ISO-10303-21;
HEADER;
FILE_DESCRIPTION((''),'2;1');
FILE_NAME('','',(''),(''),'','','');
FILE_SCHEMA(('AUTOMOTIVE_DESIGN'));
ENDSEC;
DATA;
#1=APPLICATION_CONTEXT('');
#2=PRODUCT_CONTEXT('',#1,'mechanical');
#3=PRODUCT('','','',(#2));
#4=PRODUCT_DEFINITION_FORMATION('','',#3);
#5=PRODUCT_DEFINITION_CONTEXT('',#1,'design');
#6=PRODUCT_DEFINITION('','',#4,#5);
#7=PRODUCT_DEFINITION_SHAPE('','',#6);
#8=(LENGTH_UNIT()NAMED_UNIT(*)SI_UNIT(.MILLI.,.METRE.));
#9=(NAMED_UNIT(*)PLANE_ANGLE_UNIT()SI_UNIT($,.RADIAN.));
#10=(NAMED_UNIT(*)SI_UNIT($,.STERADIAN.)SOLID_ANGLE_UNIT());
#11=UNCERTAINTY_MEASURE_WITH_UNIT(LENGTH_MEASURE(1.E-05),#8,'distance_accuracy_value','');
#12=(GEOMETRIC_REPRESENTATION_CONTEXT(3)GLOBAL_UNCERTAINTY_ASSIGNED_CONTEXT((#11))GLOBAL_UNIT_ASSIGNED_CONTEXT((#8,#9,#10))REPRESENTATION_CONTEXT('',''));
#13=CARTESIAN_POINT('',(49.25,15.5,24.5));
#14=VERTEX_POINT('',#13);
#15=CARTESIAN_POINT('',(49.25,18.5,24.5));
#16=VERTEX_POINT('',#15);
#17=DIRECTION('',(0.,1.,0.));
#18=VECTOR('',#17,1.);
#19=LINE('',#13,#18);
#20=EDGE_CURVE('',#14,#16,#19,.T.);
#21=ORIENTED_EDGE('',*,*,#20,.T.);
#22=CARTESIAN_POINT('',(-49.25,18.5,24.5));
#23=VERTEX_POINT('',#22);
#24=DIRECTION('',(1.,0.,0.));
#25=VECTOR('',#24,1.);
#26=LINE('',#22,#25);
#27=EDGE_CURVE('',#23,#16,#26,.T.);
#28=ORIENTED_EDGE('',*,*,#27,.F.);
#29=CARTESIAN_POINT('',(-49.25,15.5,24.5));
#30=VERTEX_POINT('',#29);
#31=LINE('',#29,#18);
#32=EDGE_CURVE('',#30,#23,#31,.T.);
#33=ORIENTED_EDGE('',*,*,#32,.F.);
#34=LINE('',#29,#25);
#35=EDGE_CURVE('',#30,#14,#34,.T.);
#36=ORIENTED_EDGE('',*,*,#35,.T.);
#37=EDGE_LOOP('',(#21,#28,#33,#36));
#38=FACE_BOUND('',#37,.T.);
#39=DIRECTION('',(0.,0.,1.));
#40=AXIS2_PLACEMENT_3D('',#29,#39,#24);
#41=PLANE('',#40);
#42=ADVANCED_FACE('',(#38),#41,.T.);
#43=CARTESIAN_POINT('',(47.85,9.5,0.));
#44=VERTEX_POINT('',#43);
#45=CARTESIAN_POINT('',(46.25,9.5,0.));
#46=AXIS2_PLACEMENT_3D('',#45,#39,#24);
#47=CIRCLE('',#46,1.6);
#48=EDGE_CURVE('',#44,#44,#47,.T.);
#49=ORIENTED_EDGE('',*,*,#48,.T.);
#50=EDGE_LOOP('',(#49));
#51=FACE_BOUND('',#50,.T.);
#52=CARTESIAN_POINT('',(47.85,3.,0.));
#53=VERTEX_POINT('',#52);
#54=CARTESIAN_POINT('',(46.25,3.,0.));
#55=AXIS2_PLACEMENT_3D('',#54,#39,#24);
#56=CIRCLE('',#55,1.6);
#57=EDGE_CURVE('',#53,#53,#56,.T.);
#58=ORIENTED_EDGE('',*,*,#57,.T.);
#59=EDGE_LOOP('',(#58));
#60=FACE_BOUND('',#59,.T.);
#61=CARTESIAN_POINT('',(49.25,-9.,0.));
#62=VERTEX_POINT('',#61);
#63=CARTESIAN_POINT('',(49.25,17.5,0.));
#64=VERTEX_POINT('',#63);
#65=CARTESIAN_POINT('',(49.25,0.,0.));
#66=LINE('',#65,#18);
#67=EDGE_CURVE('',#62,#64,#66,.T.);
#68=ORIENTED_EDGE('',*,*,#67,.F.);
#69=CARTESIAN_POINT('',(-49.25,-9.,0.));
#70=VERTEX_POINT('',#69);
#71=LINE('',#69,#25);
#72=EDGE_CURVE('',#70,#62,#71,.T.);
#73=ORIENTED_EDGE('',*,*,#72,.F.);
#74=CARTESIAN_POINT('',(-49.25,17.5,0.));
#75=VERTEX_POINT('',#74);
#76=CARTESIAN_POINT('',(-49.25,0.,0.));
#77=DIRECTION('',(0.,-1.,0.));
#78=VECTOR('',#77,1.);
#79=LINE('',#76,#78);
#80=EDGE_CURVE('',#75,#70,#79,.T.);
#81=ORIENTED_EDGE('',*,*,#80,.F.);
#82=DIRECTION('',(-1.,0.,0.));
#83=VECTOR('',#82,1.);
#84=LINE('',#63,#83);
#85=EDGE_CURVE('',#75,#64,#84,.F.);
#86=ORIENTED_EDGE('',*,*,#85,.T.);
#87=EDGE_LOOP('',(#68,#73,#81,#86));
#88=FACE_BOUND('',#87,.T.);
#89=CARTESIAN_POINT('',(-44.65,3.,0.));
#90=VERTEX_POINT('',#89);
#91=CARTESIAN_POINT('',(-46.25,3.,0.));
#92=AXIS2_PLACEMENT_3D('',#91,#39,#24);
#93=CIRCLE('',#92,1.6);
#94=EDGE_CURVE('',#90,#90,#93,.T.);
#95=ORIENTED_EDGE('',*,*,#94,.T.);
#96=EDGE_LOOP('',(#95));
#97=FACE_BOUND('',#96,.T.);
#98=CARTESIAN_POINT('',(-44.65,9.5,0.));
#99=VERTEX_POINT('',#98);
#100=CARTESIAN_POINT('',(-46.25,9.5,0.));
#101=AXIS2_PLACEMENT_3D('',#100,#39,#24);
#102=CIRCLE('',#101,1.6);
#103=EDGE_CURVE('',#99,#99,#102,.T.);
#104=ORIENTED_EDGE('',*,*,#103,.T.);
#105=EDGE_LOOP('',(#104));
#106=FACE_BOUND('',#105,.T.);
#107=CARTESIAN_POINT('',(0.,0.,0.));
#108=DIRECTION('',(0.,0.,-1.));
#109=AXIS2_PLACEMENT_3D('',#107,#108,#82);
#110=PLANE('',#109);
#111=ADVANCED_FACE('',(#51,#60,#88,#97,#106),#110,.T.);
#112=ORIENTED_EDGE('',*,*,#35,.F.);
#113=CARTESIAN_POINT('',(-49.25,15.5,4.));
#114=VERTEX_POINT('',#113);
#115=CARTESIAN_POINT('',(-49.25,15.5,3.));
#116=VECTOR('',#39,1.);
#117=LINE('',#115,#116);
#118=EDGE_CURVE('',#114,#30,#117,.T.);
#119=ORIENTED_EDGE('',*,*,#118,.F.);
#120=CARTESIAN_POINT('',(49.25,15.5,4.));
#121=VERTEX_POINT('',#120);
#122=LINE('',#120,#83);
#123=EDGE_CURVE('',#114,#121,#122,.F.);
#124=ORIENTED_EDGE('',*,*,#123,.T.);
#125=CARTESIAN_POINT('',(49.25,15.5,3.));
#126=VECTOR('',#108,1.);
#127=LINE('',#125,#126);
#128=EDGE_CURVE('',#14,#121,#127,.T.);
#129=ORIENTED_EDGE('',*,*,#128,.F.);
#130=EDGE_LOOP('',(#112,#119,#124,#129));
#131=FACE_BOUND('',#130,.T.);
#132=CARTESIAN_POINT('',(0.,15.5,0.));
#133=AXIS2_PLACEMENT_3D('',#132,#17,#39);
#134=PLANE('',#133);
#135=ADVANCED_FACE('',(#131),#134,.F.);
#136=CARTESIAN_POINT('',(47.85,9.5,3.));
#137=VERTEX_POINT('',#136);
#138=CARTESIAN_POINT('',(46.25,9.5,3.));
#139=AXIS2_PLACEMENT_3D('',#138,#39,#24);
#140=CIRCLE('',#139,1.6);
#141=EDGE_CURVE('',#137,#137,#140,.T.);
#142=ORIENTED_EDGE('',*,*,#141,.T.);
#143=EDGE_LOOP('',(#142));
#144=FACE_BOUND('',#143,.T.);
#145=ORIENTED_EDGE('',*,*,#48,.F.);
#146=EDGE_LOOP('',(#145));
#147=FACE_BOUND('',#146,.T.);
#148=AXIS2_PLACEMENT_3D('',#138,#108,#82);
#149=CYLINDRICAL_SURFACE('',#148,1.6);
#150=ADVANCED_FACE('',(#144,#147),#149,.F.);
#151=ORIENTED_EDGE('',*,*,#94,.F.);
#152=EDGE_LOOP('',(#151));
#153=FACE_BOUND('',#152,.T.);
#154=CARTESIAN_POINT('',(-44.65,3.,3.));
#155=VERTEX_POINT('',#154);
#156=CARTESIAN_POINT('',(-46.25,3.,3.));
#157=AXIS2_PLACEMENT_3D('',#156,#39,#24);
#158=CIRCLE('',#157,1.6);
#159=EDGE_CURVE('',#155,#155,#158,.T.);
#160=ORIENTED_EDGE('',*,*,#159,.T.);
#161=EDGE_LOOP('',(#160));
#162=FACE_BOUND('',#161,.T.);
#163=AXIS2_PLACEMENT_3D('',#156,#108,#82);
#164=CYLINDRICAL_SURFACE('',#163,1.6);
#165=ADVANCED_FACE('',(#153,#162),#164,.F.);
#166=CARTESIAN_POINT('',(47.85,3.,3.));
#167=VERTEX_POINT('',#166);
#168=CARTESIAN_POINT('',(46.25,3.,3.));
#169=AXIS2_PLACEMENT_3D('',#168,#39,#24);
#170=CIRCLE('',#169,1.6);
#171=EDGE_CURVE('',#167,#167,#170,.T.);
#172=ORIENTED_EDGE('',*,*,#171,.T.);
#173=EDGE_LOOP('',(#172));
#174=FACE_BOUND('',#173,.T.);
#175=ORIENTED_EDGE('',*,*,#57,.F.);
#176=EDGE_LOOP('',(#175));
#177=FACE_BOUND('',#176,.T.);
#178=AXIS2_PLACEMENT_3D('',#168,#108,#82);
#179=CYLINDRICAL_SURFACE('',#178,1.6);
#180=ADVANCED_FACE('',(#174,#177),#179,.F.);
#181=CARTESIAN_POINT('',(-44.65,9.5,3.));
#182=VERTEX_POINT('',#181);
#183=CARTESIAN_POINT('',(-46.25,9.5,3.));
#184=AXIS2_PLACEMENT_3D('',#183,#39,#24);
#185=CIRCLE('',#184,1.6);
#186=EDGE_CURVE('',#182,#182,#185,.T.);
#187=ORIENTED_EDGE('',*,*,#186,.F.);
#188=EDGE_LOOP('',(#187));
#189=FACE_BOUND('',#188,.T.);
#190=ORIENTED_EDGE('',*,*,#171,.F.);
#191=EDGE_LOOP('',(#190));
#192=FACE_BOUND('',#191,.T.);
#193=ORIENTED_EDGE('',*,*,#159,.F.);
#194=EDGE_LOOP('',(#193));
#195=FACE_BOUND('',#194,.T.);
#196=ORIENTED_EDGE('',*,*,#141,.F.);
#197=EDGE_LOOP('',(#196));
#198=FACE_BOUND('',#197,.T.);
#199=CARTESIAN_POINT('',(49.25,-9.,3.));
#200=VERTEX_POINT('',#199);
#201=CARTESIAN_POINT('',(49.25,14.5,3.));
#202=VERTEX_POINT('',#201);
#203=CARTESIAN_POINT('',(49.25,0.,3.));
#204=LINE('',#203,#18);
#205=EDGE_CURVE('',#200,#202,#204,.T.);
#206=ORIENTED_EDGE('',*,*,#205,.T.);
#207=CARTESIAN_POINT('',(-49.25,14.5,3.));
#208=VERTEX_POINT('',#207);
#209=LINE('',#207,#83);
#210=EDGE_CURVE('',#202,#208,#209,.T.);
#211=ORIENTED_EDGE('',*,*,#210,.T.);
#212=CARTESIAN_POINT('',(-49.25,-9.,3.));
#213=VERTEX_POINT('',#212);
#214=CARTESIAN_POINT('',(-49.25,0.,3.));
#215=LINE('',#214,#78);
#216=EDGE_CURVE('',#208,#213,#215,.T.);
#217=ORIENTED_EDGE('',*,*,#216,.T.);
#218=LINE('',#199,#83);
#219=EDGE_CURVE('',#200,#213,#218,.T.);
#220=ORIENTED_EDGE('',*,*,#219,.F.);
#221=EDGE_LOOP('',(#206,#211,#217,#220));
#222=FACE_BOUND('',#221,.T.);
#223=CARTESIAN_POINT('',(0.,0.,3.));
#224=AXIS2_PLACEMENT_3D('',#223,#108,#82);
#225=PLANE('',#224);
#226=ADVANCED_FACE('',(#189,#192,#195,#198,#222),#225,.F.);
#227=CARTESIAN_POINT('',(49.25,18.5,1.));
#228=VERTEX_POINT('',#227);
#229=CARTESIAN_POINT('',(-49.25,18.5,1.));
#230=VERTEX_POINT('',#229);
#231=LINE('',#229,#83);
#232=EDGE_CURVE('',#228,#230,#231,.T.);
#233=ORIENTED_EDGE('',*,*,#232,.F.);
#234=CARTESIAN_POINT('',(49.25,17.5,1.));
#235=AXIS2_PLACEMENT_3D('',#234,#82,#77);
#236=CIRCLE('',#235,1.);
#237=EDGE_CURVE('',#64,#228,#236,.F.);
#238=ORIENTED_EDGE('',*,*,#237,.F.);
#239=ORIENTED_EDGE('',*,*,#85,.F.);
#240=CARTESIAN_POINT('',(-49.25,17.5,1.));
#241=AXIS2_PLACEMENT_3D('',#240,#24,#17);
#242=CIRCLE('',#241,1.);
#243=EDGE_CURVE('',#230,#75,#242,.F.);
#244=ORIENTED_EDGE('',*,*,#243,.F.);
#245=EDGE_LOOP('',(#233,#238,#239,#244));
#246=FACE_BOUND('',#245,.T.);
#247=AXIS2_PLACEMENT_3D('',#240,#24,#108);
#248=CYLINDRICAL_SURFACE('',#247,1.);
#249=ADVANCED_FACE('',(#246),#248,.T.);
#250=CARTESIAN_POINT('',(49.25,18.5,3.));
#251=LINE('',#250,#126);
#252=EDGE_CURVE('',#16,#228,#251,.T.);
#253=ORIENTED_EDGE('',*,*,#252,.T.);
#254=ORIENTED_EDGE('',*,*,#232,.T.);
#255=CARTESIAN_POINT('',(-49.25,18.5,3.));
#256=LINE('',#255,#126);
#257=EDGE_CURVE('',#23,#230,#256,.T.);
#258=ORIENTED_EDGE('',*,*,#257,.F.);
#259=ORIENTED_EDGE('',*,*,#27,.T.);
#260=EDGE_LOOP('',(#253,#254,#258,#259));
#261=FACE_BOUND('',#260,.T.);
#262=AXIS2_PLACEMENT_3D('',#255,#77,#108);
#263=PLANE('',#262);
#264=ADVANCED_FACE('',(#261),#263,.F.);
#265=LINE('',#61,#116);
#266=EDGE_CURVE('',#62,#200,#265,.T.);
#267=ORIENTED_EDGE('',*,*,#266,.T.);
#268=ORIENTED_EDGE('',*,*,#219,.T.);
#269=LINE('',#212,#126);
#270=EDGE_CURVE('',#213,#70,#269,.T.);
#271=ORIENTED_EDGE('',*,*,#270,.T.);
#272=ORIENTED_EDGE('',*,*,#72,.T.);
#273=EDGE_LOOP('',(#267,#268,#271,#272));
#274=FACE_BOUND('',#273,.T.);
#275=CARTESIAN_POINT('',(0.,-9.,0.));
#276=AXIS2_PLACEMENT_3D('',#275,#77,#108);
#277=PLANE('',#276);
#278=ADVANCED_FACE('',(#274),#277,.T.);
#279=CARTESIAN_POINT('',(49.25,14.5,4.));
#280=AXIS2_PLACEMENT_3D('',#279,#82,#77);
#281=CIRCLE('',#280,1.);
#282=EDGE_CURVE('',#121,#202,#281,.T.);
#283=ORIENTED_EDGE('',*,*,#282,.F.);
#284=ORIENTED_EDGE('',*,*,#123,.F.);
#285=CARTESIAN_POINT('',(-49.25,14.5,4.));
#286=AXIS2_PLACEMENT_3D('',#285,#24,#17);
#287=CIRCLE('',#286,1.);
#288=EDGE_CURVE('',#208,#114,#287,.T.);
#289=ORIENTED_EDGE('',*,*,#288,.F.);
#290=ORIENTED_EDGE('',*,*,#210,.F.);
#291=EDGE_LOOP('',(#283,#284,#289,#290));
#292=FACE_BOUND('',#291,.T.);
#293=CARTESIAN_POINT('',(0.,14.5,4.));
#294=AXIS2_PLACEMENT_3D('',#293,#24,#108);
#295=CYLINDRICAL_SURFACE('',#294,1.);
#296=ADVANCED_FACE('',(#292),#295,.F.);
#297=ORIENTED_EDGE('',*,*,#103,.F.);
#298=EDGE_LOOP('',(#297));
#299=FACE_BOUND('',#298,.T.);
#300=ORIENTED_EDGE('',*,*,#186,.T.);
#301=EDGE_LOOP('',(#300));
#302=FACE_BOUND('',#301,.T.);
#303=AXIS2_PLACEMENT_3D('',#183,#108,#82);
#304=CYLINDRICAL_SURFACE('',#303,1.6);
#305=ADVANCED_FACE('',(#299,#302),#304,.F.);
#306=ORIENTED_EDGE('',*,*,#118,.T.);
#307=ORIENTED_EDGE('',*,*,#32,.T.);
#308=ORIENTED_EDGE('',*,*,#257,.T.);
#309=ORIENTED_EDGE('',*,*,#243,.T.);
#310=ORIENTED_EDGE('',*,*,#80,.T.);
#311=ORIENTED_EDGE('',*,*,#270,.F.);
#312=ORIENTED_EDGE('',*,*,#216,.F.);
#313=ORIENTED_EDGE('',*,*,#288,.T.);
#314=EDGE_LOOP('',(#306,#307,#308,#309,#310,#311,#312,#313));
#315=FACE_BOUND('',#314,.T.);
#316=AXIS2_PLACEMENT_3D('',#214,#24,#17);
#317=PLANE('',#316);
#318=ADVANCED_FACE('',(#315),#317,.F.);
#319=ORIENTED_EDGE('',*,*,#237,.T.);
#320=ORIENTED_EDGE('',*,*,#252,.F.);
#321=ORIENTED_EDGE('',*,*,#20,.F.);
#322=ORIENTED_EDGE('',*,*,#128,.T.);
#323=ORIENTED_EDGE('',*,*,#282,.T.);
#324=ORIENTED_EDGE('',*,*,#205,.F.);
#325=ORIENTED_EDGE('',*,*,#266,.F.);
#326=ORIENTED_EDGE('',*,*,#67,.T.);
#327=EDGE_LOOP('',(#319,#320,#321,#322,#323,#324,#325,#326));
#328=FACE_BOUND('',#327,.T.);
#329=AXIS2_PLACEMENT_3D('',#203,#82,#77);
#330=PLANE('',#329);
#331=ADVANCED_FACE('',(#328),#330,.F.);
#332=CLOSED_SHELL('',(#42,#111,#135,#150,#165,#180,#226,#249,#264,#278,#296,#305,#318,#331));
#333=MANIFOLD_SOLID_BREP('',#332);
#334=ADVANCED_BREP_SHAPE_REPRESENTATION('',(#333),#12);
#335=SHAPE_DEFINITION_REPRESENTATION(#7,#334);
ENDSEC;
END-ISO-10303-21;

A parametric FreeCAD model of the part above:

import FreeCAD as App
import Part
import Sketcher
from FreeCAD import Vector


def edges_at(feature, points):
    """Names of the edges that pass closest to the given points."""
    edges = feature.Shape.Edges
    near = lambda p: min(range(len(edges)), key=lambda i: edges[i].distToShape(Part.Vertex(*p))[0])
    return sorted({f"Edge{near(p) + 1}" for p in points})


def add_polygon(sketch, points):
    """Adds a closed chain of lines whose ends are joined by coincident constraints."""
    first, n = sketch.GeometryCount, len(points)
    for a, b in zip(points, points[1:] + points[:1]):
        sketch.addGeometry(Part.LineSegment(App.Vector(*a, 0), App.Vector(*b, 0)), False)
    for i in range(n):
        sketch.addConstraint(Sketcher.Constraint("Coincident", first + i, 2, first + (i + 1) % n, 1))

doc = App.newDocument("Part")
body = doc.addObject("PartDesign::Body", "Body")

sketch1 = body.newObject("Sketcher::SketchObject", "Sketch")
sketch1.AttachmentSupport = (doc.getObject("XY_Plane"), [""])
sketch1.MapMode = "FlatFace"
add_polygon(sketch1, [(-49.2, 18.5), (-49.2, 0), (49.2, 0), (49.2, 18.5)])
sketch1.addGeometry(Part.Circle(Vector(-46.2, 3, 0), Vector(0, 0, 1), 1.6), False)
sketch1.addGeometry(Part.Circle(Vector(46.2, 3, 0), Vector(0, 0, 1), 1.6), False)
sketch1.addGeometry(Part.Circle(Vector(-46.2, 9.5, 0), Vector(0, 0, 1), 1.6), False)
sketch1.addGeometry(Part.Circle(Vector(46.2, 9.5, 0), Vector(0, 0, 1), 1.6), False)
sketch1.addConstraint(Sketcher.Constraint("Vertical", 0))
sketch1.addConstraint(Sketcher.Constraint("Horizontal", 1))
sketch1.addConstraint(Sketcher.Constraint("Vertical", 2))
sketch1.addConstraint(Sketcher.Constraint("Horizontal", 3))
sketch1.addConstraint(Sketcher.Constraint("Equal", 4, 5))
sketch1.addConstraint(Sketcher.Constraint("Equal", 5, 6))
sketch1.addConstraint(Sketcher.Constraint("Equal", 6, 7))
sketch1.addConstraint(Sketcher.Constraint("Symmetric", 0, 2, 1, 2, -1, 1))
sketch1.addConstraint(Sketcher.Constraint("Symmetric", 4, 3, 5, 3, -2))
sketch1.addConstraint(Sketcher.Constraint("Symmetric", 6, 3, 7, 3, -2))
sketch1.addConstraint(Sketcher.Constraint("Vertical", 4, 3, 6, 3))
sketch1.addConstraint(Sketcher.Constraint("Diameter", 4, 3.2))
sketch1.addConstraint(Sketcher.Constraint("DistanceX", 1, 1, 1, 2, 98.5))
sketch1.addConstraint(Sketcher.Constraint("DistanceY", 0, 2, 0, 1, 18.5))
sketch1.addConstraint(Sketcher.Constraint("DistanceY", -1, 1, 4, 3, 3.0))
sketch1.addConstraint(Sketcher.Constraint("DistanceX", 0, 2, 4, 3, 3.0))
sketch1.addConstraint(Sketcher.Constraint("DistanceY", 7, 3, 2, 2, 9.0))
pad1 = body.newObject("PartDesign::Pad", "Pad")
pad1.Profile = sketch1
pad1.Length = 3

sketch2 = body.newObject("Sketcher::SketchObject", "Sketch001")
sketch2.AttachmentSupport = (doc.getObject("XZ_Plane"), [""])
sketch2.MapMode = "FlatFace"
sketch2.AttachmentOffset = App.Placement(Vector(0, 0, -18.5), App.Rotation())
add_polygon(sketch2, [(-49, 3), (-49, 24), (49, 24), (49, 3)])
sketch2.addConstraint(Sketcher.Constraint("Vertical", 0))
sketch2.addConstraint(Sketcher.Constraint("Horizontal", 1))
sketch2.addConstraint(Sketcher.Constraint("Vertical", 2))
sketch2.addConstraint(Sketcher.Constraint("Horizontal", 3))
sketch2.addConstraint(Sketcher.Constraint("DistanceX", 1, 1, 1, 2, 98.5))
sketch2.addConstraint(Sketcher.Constraint("DistanceY", 0, 1, 0, 2, 21.5))
sketch2.addConstraint(Sketcher.Constraint("DistanceY", -1, 1, 2, 2, 3.0))
sketch2.addConstraint(Sketcher.Constraint("DistanceX", 0, 2, -1, 1, 49.25))
pad2 = body.newObject("PartDesign::Pad", "Pad001")
pad2.Profile = sketch2
pad2.Length = 3
doc.recompute()

fillet = body.newObject("PartDesign::Fillet", "Fillet")
fillet.Base = (pad2, edges_at(pad2, [(0, 15.5, 3), (0, 18.5, 0)]))
fillet.Radius = 1

sketch3 = body.newObject("Sketcher::SketchObject", "Sketch002")
sketch3.AttachmentSupport = (doc.getObject("XZ_Plane"), [""])
sketch3.MapMode = "FlatFace"
add_polygon(sketch3, [(-49.2, 3), (-49.2, 0), (49.2, 0), (49.2, 3)])
sketch3.addConstraint(Sketcher.Constraint("Vertical", 0))
sketch3.addConstraint(Sketcher.Constraint("Horizontal", 1))
sketch3.addConstraint(Sketcher.Constraint("Vertical", 2))
sketch3.addConstraint(Sketcher.Constraint("Horizontal", 3))
sketch3.addConstraint(Sketcher.Constraint("Symmetric", 0, 2, 1, 2, -1, 1))
sketch3.addConstraint(Sketcher.Constraint("DistanceY", 0, 2, 0, 1, 3.0))
sketch3.addConstraint(Sketcher.Constraint("DistanceX", 1, 1, 1, 2, 98.5))
pad3 = body.newObject("PartDesign::Pad", "Pad002")
pad3.Profile = sketch3
pad3.Length = 9

doc.recompute()
